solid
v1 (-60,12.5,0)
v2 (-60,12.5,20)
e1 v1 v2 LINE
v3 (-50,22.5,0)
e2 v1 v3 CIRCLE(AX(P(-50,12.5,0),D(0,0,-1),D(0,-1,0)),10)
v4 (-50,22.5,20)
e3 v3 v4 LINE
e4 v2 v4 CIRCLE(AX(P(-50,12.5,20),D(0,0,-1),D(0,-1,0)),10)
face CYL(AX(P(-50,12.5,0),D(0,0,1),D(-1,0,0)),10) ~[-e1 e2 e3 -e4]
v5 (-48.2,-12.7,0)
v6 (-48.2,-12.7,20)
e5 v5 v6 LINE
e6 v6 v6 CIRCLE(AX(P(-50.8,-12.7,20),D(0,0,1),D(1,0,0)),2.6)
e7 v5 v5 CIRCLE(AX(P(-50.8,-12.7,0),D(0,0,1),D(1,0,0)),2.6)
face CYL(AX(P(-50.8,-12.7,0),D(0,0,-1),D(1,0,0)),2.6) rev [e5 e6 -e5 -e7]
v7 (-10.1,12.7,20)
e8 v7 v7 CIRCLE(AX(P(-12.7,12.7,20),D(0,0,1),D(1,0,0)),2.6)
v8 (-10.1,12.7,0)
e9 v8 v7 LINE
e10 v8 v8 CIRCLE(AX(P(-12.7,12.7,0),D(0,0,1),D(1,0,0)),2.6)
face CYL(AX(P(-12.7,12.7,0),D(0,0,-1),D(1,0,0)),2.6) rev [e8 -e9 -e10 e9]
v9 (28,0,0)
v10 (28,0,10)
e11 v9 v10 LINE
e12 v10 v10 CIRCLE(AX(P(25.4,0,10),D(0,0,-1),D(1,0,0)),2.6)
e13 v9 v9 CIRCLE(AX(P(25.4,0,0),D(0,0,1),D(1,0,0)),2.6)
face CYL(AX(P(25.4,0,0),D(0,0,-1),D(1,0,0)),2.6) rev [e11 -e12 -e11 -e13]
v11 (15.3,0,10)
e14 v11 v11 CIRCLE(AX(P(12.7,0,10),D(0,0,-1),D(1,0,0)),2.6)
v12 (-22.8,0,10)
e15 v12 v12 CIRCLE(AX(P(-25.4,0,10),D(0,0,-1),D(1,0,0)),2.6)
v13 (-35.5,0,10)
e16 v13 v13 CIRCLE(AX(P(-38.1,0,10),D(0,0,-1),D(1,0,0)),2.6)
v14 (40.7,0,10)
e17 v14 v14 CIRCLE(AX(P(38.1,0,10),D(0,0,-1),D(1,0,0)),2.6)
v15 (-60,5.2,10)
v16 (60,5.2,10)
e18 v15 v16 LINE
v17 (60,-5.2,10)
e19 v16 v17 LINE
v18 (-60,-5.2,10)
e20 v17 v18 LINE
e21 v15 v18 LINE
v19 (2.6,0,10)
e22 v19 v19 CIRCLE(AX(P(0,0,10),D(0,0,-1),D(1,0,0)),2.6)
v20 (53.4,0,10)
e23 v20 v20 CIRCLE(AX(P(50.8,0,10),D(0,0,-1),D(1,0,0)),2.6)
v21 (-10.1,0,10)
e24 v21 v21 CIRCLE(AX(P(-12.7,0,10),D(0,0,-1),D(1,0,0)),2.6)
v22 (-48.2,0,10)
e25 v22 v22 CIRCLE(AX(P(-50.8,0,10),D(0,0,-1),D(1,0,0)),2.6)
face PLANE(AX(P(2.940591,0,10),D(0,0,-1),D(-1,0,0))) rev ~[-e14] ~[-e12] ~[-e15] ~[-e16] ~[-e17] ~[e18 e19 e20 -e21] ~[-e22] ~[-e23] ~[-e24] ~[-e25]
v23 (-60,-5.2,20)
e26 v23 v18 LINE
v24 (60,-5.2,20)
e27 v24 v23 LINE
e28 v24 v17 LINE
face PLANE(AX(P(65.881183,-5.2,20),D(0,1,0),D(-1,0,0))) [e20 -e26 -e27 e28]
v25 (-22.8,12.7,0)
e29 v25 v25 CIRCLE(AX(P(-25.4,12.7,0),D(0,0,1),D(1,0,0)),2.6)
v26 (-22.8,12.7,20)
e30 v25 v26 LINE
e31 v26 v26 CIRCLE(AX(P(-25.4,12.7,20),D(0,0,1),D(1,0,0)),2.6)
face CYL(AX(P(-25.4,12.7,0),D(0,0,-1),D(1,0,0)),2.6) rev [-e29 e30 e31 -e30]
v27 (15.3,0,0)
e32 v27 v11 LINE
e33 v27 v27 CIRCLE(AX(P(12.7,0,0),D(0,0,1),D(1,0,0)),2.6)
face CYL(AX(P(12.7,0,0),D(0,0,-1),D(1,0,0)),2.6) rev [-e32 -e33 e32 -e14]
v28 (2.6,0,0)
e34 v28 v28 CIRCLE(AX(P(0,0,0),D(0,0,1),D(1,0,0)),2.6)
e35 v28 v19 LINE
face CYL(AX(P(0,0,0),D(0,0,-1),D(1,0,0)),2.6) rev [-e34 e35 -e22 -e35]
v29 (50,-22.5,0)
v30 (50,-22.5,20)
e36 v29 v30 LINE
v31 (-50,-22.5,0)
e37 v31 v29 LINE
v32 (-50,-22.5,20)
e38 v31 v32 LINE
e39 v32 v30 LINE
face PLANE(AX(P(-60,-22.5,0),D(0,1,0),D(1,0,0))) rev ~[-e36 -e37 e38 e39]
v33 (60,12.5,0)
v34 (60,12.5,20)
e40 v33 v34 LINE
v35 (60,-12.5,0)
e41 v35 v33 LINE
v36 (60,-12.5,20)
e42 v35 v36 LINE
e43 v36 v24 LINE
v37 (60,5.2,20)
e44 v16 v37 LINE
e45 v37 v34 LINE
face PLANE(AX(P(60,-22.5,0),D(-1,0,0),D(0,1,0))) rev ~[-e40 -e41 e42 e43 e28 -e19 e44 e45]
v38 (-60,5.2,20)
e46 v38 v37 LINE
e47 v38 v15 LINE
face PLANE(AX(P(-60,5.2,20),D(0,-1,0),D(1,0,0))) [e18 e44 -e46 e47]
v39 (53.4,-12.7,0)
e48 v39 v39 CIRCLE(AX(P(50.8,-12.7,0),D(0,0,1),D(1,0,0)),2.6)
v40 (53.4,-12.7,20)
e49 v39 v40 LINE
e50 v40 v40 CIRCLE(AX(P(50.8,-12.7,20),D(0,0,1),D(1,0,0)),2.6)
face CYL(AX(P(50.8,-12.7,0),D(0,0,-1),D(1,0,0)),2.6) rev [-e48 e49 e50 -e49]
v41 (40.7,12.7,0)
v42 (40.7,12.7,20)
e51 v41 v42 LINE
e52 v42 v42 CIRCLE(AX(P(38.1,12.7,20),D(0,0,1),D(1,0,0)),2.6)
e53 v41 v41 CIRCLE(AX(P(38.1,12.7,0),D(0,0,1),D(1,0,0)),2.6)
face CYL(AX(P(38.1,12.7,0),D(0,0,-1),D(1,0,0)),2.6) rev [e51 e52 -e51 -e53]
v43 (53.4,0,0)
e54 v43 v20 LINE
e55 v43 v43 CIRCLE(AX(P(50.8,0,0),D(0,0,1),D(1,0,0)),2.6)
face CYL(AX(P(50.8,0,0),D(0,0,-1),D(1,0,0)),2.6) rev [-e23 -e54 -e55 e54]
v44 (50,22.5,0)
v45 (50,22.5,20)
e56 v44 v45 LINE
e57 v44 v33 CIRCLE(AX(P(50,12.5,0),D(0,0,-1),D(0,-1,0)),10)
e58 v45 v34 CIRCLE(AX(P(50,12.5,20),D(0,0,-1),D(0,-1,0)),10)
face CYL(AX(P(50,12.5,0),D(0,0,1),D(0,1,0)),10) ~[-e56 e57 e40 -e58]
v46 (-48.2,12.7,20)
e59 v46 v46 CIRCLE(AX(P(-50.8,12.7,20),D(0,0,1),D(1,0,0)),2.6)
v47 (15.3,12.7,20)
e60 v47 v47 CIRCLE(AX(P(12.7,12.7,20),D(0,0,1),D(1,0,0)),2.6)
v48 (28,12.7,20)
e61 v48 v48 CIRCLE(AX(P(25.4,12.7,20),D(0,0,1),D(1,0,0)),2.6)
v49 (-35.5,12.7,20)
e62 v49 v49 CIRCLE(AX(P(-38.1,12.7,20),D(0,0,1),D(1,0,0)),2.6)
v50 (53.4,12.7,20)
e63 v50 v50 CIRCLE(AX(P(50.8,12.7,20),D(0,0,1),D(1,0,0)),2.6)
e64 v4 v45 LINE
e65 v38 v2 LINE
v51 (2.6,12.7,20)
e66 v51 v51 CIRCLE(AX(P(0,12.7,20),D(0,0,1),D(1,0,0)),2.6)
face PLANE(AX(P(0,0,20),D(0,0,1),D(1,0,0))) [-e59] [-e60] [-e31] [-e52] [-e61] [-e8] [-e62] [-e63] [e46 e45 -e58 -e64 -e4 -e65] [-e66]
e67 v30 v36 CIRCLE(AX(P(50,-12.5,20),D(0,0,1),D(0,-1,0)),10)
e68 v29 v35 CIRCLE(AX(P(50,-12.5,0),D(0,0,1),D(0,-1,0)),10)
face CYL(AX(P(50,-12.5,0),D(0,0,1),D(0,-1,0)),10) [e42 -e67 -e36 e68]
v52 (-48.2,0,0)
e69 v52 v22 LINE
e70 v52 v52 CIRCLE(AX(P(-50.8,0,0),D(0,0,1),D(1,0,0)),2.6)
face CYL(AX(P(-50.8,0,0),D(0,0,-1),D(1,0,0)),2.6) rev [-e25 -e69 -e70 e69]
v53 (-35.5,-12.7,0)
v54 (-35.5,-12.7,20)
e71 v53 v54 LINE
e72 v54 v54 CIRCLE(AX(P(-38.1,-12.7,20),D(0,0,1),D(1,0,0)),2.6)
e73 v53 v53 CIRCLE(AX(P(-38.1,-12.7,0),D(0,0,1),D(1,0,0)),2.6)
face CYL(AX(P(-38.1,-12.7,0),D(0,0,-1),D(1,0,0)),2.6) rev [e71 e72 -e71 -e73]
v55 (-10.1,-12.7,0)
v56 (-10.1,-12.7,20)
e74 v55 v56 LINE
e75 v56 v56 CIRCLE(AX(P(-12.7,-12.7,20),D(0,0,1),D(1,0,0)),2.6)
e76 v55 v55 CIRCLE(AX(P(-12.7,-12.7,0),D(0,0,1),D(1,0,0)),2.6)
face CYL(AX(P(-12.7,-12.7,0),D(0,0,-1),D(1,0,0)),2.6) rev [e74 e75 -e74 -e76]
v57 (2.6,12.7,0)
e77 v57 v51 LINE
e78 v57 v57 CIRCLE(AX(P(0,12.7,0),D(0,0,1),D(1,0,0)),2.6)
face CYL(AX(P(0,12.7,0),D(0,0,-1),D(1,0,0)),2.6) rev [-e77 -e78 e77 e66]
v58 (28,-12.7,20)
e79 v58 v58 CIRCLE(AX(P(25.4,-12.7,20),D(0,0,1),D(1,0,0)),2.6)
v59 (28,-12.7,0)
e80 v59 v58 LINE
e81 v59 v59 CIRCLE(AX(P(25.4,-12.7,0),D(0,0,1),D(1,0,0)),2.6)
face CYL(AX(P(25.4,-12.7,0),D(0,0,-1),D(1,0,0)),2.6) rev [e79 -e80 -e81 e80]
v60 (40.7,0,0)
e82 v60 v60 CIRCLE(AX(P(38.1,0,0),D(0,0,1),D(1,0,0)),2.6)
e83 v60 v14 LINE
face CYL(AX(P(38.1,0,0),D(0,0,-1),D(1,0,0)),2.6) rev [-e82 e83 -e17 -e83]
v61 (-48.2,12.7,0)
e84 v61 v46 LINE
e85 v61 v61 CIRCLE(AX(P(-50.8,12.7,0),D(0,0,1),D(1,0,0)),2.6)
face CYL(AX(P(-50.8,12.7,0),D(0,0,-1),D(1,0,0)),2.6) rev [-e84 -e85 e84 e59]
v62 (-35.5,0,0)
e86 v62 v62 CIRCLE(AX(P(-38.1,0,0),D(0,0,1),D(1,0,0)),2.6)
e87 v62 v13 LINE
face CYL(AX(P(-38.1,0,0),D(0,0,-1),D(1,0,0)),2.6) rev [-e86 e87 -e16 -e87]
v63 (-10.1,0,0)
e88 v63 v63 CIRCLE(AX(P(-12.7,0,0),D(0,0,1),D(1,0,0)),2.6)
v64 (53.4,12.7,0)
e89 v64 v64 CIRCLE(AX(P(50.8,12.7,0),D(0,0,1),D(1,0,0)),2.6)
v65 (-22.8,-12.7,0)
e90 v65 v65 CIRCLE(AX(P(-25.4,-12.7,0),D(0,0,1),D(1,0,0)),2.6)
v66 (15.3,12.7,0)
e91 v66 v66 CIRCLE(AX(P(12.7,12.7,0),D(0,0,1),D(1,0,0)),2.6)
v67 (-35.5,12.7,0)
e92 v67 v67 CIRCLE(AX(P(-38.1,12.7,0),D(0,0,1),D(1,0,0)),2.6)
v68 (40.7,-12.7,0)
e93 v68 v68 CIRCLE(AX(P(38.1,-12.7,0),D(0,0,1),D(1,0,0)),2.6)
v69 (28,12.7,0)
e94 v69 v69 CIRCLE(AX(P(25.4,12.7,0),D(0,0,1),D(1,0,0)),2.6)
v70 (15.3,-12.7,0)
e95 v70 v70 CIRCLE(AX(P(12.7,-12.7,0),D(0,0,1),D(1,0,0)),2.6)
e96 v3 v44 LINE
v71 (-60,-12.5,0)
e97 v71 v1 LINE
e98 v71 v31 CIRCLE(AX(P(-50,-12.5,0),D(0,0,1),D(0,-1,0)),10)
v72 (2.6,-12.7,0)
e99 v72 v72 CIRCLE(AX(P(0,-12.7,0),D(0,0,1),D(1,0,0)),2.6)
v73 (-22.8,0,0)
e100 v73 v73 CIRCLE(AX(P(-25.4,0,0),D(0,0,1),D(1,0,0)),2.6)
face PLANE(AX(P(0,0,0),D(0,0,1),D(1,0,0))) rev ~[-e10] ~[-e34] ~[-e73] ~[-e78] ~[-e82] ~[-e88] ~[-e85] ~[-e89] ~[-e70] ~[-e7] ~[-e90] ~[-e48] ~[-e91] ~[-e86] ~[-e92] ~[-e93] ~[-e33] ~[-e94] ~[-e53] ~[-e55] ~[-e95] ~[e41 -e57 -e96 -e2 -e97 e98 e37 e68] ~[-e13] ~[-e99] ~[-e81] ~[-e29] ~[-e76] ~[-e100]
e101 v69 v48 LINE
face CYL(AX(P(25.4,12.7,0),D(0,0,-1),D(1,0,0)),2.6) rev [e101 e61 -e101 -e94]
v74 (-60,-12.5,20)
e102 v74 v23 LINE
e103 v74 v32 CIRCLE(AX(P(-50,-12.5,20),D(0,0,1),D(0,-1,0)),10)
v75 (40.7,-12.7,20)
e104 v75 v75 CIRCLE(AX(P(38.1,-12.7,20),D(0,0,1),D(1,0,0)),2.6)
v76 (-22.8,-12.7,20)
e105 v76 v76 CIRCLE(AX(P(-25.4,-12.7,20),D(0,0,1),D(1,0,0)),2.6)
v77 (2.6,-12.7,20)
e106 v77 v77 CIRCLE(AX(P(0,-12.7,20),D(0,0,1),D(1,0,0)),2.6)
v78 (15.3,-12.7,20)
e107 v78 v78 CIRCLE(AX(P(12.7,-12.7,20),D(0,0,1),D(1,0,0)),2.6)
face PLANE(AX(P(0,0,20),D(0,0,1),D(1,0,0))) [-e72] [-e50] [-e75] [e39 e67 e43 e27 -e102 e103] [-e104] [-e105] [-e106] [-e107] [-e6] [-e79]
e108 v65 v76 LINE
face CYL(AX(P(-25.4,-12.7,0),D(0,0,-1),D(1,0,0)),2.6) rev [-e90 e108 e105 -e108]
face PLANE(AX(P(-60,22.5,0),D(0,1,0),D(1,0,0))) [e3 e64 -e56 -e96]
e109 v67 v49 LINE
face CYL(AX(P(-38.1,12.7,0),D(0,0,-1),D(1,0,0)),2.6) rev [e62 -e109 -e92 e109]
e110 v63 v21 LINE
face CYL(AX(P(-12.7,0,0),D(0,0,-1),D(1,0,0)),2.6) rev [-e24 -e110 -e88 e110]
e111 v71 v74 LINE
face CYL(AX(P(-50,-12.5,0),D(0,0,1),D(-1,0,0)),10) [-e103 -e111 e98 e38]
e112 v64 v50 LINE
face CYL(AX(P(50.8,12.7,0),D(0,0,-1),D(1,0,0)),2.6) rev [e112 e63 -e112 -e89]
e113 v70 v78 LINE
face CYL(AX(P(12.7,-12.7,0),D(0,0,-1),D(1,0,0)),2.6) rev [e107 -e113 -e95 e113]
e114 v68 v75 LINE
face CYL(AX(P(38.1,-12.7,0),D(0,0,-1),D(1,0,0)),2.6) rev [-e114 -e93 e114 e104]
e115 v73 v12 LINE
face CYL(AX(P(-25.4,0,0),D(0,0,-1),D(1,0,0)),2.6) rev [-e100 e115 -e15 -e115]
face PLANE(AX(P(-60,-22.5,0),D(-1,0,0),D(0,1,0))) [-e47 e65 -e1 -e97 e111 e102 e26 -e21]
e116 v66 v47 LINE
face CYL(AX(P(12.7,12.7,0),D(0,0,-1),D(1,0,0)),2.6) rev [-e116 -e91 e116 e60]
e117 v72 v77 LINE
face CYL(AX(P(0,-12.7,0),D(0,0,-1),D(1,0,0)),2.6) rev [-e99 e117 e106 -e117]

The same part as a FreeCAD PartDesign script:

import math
import FreeCAD as App
import Part
import Sketcher
from FreeCAD import Vector


def edges_at(feature, points):
    """Names of the edges that pass closest to the given points."""
    edges = feature.Shape.Edges
    near = lambda p: min(range(len(edges)), key=lambda i: edges[i].distToShape(Part.Vertex(*p))[0])
    return sorted({f"Edge{near(p) + 1}" for p in points})


def add_polygon(sketch, points):
    """Adds a closed chain of lines whose ends are joined by coincident constraints."""
    first, n = sketch.GeometryCount, len(points)
    for a, b in zip(points, points[1:] + points[:1]):
        sketch.addGeometry(Part.LineSegment(App.Vector(*a, 0), App.Vector(*b, 0)), False)
    for i in range(n):
        sketch.addConstraint(Sketcher.Constraint("Coincident", first + i, 2, first + (i + 1) % n, 1))

doc = App.newDocument("Part")
body = doc.addObject("PartDesign::Body", "Body")

sketch1 = body.newObject("Sketcher::SketchObject", "Sketch")
sketch1.AttachmentSupport = (doc.getObject("XY_Plane"), [""])
sketch1.MapMode = "FlatFace"
add_polygon(sketch1, [(-60, 22.5), (-60, -22.5), (60, -22.5), (60, 22.5)])
sketch1.addGeometry(Part.Circle(Vector(-50.8, -12.7, 0), Vector(0, 0, 1), 2.6), False)
sketch1.addGeometry(Part.Circle(Vector(-38.1, -12.7, 0), Vector(0, 0, 1), 2.6), False)
sketch1.addGeometry(Part.Circle(Vector(-25.4, -12.7, 0), Vector(0, 0, 1), 2.6), False)
sketch1.addGeometry(Part.Circle(Vector(-12.7, -12.7, 0), Vector(0, 0, 1), 2.6), False)
sketch1.addGeometry(Part.Circle(Vector(0, -12.7, 0), Vector(0, 0, 1), 2.6), False)
sketch1.addGeometry(Part.Circle(Vector(12.7, -12.7, 0), Vector(0, 0, 1), 2.6), False)
sketch1.addGeometry(Part.Circle(Vector(25.4, -12.7, 0), Vector(0, 0, 1), 2.6), False)
sketch1.addGeometry(Part.Circle(Vector(38.1, -12.7, 0), Vector(0, 0, 1), 2.6), False)
sketch1.addGeometry(Part.Circle(Vector(50.8, -12.7, 0), Vector(0, 0, 1), 2.6), False)
sketch1.addGeometry(Part.Circle(Vector(-50.8, 0, 0), Vector(0, 0, 1), 2.6), False)
sketch1.addGeometry(Part.Circle(Vector(-38.1, 0, 0), Vector(0, 0, 1), 2.6), False)
sketch1.addGeometry(Part.Circle(Vector(-25.4, 0, 0), Vector(0, 0, 1), 2.6), False)
sketch1.addGeometry(Part.Circle(Vector(-12.7, 0, 0), Vector(0, 0, 1), 2.6), False)
sketch1.addGeometry(Part.Circle(Vector(-50.8, 12.7, 0), Vector(0, 0, 1), 2.6), False)
sketch1.addGeometry(Part.Circle(Vector(-38.1, 12.7, 0), Vector(0, 0, 1), 2.6), False)
sketch1.addGeometry(Part.Circle(Vector(-25.4, 12.7, 0), Vector(0, 0, 1), 2.6), False)
sketch1.addGeometry(Part.Circle(Vector(-12.7, 12.7, 0), Vector(0, 0, 1), 2.6), False)
sketch1.addGeometry(Part.Circle(Vector(0, 0, 0), Vector(0, 0, 1), 2.6), False)
sketch1.addGeometry(Part.Circle(Vector(12.7, 0, 0), Vector(0, 0, 1), 2.6), False)
sketch1.addGeometry(Part.Circle(Vector(25.4, 0, 0), Vector(0, 0, 1), 2.6), False)
sketch1.addGeometry(Part.Circle(Vector(38.1, 0, 0), Vector(0, 0, 1), 2.6), False)
sketch1.addGeometry(Part.Circle(Vector(50.8, 0, 0), Vector(0, 0, 1), 2.6), False)
sketch1.addGeometry(Part.Circle(Vector(0, 12.7, 0), Vector(0, 0, 1), 2.6), False)
sketch1.addGeometry(Part.Circle(Vector(12.7, 12.7, 0), Vector(0, 0, 1), 2.6), False)
sketch1.addGeometry(Part.Circle(Vector(25.4, 12.7, 0), Vector(0, 0, 1), 2.6), False)
sketch1.addGeometry(Part.Circle(Vector(38.1, 12.7, 0), Vector(0, 0, 1), 2.6), False)
sketch1.addGeometry(Part.Circle(Vector(50.8, 12.7, 0), Vector(0, 0, 1), 2.6), False)
sketch1.addConstraint([
    Sketcher.Constraint("Vertical", 0),
    Sketcher.Constraint("Horizontal", 1),
    Sketcher.Constraint("Vertical", 2),
    Sketcher.Constraint("Horizontal", 3),
    Sketcher.Constraint("Coincident", 21, 3, -1, 1),
    Sketcher.Constraint("Equal", 4, 5),
    Sketcher.Constraint("Equal", 5, 6),
    Sketcher.Constraint("Equal", 6, 7),
    Sketcher.Constraint("Equal", 7, 8),
    Sketcher.Constraint("Equal", 8, 9),
    Sketcher.Constraint("Equal", 9, 10),
    Sketcher.Constraint("Equal", 10, 11),
    Sketcher.Constraint("Equal", 11, 12),
    Sketcher.Constraint("Equal", 12, 13),
    Sketcher.Constraint("Equal", 13, 14),
    Sketcher.Constraint("Equal", 14, 15),
    Sketcher.Constraint("Equal", 15, 16),
    Sketcher.Constraint("Equal", 16, 17),
    Sketcher.Constraint("Equal", 17, 18),
    Sketcher.Constraint("Equal", 18, 19),
    Sketcher.Constraint("Equal", 19, 20),
    Sketcher.Constraint("Equal", 20, 21),
    Sketcher.Constraint("Equal", 21, 22),
    Sketcher.Constraint("Equal", 22, 23),
    Sketcher.Constraint("Equal", 23, 24),
    Sketcher.Constraint("Equal", 24, 25),
    Sketcher.Constraint("Equal", 25, 26),
    Sketcher.Constraint("Equal", 26, 27),
    Sketcher.Constraint("Equal", 27, 28),
    Sketcher.Constraint("Equal", 28, 29),
    Sketcher.Constraint("Equal", 29, 30),
    Sketcher.Constraint("Symmetric", 12, 3, 17, 3, -1, 1),
    Sketcher.Constraint("Symmetric", 11, 3, 18, 3, -1, 1),
    Sketcher.Constraint("Symmetric", 10, 3, 19, 3, -1, 1),
    Sketcher.Constraint("Symmetric", 9, 3, 20, 3, -1, 1),
    Sketcher.Constraint("Symmetric", 16, 3, 22, 3, -1, 1),
    Sketcher.Constraint("Symmetric", 15, 3, 23, 3, -1, 1),
    Sketcher.Constraint("Symmetric", 14, 3, 24, 3, -1, 1),
    Sketcher.Constraint("Symmetric", 13, 3, 25, 3, -1, 1),
    Sketcher.Constraint("Symmetric", 8, 3, 26, 3, -1, 1),
    Sketcher.Constraint("Symmetric", 7, 3, 27, 3, -1, 1),
    Sketcher.Constraint("Symmetric", 6, 3, 28, 3, -1, 1),
    Sketcher.Constraint("Symmetric", 5, 3, 29, 3, -1, 1),
    Sketcher.Constraint("Symmetric", 4, 3, 30, 3, -1, 1),
    Sketcher.Constraint("Symmetric", 0, 2, 2, 2, -1, 1),
    Sketcher.Constraint("Symmetric", 7, 3, 9, 3, -2),
    Sketcher.Constraint("Symmetric", 6, 3, 10, 3, -2),
    Sketcher.Constraint("Symmetric", 5, 3, 11, 3, -2),
    Sketcher.Constraint("Symmetric", 4, 3, 12, 3, -2),
    Sketcher.Constraint("PointOnObject", 8, 3, -2),
    Sketcher.Constraint("PointOnObject", 13, 3, -1),
    Sketcher.Constraint("PointOnObject", 14, 3, -1),
    Sketcher.Constraint("PointOnObject", 15, 3, -1),
    Sketcher.Constraint("PointOnObject", 16, 3, -1),
    Sketcher.Constraint("Horizontal", 4, 3, 5, 3),
    Sketcher.Constraint("Horizontal", 5, 3, 6, 3),
    Sketcher.Constraint("Horizontal", 6, 3, 7, 3),
    Sketcher.Constraint("Horizontal", 7, 3, 8, 3),
    Sketcher.Constraint("Vertical", 4, 3, 13, 3),
    Sketcher.Constraint("Vertical", 5, 3, 14, 3),
    Sketcher.Constraint("Vertical", 6, 3, 15, 3),
    Sketcher.Constraint("Vertical", 7, 3, 16, 3),
    Sketcher.Constraint("Diameter", 4, 5.2),
    Sketcher.Constraint("DistanceX", 1, 1, 1, 2, 120.0),
    Sketcher.Constraint("DistanceY", 0, 2, 0, 1, 45.0),
    Sketcher.Constraint("DistanceX", 4, 3, -1, 1, 50.8),
    Sketcher.Constraint("DistanceY", 4, 3, -1, 1, 12.7),
    Sketcher.Constraint("DistanceX", 5, 3, -1, 1, 38.1),
    Sketcher.Constraint("DistanceX", 6, 3, -1, 1, 25.4),
    Sketcher.Constraint("DistanceX", 7, 3, -1, 1, 12.7),
])
pad1 = body.newObject("PartDesign::Pad", "Pad")
pad1.Profile = sketch1
pad1.Length = 20
doc.recompute()

fillet = body.newObject("PartDesign::Fillet", "Fillet")
fillet.Base = (pad1, edges_at(pad1, [
    (60, -22.5, 10),
    (-60, -22.5, 10),
    (-60, 22.5, 10),
    (60, 22.5, 10),
]))
fillet.Radius = 10

sketch2 = body.newObject("Sketcher::SketchObject", "Sketch001")
sketch2.AttachmentSupport = (doc.getObject("XY_Plane"), [""])
sketch2.MapMode = "FlatFace"
sketch2.AttachmentOffset = App.Placement(Vector(0, 0, 20), App.Rotation())
sketch2.addGeometry([
    Part.LineSegment(Vector(66, 5, 0), Vector(-60, 5, 0)),
    Part.ArcOfCircle(Part.Circle(Vector(-60, 0, 0), Vector(0, 0, 1), 5), math.radians(90), math.radians(270)),
    Part.LineSegment(Vector(-60, -5, 0), Vector(66, -5, 0)),
    Part.ArcOfCircle(Part.Circle(Vector(66, 0, 0), Vector(0, 0, 1), 5), math.radians(-90), math.radians(90)),
], False)
sketch2.addConstraint([
    Sketcher.Constraint("Tangent", 0, 2, 1, 1),
    Sketcher.Constraint("Tangent", 1, 2, 2, 1),
    Sketcher.Constraint("Tangent", 2, 2, 3, 1),
    Sketcher.Constraint("Tangent", 3, 2, 0, 1),
    Sketcher.Constraint("Horizontal", 0),
    Sketcher.Constraint("Horizontal", 2),
    Sketcher.Constraint("PointOnObject", 1, 3, -1),
    Sketcher.Constraint("Radius", 1, 5.2),
    Sketcher.Constraint("DistanceX", 1, 3, -1, 1, 60.0),
    Sketcher.Constraint("DistanceX", 0, 2, 0, 1, 125.881183),
])
pocket1 = body.newObject("PartDesign::Pocket", "Pocket")
pocket1.Profile = sketch2
pocket1.Length = 10

doc.recompute()
